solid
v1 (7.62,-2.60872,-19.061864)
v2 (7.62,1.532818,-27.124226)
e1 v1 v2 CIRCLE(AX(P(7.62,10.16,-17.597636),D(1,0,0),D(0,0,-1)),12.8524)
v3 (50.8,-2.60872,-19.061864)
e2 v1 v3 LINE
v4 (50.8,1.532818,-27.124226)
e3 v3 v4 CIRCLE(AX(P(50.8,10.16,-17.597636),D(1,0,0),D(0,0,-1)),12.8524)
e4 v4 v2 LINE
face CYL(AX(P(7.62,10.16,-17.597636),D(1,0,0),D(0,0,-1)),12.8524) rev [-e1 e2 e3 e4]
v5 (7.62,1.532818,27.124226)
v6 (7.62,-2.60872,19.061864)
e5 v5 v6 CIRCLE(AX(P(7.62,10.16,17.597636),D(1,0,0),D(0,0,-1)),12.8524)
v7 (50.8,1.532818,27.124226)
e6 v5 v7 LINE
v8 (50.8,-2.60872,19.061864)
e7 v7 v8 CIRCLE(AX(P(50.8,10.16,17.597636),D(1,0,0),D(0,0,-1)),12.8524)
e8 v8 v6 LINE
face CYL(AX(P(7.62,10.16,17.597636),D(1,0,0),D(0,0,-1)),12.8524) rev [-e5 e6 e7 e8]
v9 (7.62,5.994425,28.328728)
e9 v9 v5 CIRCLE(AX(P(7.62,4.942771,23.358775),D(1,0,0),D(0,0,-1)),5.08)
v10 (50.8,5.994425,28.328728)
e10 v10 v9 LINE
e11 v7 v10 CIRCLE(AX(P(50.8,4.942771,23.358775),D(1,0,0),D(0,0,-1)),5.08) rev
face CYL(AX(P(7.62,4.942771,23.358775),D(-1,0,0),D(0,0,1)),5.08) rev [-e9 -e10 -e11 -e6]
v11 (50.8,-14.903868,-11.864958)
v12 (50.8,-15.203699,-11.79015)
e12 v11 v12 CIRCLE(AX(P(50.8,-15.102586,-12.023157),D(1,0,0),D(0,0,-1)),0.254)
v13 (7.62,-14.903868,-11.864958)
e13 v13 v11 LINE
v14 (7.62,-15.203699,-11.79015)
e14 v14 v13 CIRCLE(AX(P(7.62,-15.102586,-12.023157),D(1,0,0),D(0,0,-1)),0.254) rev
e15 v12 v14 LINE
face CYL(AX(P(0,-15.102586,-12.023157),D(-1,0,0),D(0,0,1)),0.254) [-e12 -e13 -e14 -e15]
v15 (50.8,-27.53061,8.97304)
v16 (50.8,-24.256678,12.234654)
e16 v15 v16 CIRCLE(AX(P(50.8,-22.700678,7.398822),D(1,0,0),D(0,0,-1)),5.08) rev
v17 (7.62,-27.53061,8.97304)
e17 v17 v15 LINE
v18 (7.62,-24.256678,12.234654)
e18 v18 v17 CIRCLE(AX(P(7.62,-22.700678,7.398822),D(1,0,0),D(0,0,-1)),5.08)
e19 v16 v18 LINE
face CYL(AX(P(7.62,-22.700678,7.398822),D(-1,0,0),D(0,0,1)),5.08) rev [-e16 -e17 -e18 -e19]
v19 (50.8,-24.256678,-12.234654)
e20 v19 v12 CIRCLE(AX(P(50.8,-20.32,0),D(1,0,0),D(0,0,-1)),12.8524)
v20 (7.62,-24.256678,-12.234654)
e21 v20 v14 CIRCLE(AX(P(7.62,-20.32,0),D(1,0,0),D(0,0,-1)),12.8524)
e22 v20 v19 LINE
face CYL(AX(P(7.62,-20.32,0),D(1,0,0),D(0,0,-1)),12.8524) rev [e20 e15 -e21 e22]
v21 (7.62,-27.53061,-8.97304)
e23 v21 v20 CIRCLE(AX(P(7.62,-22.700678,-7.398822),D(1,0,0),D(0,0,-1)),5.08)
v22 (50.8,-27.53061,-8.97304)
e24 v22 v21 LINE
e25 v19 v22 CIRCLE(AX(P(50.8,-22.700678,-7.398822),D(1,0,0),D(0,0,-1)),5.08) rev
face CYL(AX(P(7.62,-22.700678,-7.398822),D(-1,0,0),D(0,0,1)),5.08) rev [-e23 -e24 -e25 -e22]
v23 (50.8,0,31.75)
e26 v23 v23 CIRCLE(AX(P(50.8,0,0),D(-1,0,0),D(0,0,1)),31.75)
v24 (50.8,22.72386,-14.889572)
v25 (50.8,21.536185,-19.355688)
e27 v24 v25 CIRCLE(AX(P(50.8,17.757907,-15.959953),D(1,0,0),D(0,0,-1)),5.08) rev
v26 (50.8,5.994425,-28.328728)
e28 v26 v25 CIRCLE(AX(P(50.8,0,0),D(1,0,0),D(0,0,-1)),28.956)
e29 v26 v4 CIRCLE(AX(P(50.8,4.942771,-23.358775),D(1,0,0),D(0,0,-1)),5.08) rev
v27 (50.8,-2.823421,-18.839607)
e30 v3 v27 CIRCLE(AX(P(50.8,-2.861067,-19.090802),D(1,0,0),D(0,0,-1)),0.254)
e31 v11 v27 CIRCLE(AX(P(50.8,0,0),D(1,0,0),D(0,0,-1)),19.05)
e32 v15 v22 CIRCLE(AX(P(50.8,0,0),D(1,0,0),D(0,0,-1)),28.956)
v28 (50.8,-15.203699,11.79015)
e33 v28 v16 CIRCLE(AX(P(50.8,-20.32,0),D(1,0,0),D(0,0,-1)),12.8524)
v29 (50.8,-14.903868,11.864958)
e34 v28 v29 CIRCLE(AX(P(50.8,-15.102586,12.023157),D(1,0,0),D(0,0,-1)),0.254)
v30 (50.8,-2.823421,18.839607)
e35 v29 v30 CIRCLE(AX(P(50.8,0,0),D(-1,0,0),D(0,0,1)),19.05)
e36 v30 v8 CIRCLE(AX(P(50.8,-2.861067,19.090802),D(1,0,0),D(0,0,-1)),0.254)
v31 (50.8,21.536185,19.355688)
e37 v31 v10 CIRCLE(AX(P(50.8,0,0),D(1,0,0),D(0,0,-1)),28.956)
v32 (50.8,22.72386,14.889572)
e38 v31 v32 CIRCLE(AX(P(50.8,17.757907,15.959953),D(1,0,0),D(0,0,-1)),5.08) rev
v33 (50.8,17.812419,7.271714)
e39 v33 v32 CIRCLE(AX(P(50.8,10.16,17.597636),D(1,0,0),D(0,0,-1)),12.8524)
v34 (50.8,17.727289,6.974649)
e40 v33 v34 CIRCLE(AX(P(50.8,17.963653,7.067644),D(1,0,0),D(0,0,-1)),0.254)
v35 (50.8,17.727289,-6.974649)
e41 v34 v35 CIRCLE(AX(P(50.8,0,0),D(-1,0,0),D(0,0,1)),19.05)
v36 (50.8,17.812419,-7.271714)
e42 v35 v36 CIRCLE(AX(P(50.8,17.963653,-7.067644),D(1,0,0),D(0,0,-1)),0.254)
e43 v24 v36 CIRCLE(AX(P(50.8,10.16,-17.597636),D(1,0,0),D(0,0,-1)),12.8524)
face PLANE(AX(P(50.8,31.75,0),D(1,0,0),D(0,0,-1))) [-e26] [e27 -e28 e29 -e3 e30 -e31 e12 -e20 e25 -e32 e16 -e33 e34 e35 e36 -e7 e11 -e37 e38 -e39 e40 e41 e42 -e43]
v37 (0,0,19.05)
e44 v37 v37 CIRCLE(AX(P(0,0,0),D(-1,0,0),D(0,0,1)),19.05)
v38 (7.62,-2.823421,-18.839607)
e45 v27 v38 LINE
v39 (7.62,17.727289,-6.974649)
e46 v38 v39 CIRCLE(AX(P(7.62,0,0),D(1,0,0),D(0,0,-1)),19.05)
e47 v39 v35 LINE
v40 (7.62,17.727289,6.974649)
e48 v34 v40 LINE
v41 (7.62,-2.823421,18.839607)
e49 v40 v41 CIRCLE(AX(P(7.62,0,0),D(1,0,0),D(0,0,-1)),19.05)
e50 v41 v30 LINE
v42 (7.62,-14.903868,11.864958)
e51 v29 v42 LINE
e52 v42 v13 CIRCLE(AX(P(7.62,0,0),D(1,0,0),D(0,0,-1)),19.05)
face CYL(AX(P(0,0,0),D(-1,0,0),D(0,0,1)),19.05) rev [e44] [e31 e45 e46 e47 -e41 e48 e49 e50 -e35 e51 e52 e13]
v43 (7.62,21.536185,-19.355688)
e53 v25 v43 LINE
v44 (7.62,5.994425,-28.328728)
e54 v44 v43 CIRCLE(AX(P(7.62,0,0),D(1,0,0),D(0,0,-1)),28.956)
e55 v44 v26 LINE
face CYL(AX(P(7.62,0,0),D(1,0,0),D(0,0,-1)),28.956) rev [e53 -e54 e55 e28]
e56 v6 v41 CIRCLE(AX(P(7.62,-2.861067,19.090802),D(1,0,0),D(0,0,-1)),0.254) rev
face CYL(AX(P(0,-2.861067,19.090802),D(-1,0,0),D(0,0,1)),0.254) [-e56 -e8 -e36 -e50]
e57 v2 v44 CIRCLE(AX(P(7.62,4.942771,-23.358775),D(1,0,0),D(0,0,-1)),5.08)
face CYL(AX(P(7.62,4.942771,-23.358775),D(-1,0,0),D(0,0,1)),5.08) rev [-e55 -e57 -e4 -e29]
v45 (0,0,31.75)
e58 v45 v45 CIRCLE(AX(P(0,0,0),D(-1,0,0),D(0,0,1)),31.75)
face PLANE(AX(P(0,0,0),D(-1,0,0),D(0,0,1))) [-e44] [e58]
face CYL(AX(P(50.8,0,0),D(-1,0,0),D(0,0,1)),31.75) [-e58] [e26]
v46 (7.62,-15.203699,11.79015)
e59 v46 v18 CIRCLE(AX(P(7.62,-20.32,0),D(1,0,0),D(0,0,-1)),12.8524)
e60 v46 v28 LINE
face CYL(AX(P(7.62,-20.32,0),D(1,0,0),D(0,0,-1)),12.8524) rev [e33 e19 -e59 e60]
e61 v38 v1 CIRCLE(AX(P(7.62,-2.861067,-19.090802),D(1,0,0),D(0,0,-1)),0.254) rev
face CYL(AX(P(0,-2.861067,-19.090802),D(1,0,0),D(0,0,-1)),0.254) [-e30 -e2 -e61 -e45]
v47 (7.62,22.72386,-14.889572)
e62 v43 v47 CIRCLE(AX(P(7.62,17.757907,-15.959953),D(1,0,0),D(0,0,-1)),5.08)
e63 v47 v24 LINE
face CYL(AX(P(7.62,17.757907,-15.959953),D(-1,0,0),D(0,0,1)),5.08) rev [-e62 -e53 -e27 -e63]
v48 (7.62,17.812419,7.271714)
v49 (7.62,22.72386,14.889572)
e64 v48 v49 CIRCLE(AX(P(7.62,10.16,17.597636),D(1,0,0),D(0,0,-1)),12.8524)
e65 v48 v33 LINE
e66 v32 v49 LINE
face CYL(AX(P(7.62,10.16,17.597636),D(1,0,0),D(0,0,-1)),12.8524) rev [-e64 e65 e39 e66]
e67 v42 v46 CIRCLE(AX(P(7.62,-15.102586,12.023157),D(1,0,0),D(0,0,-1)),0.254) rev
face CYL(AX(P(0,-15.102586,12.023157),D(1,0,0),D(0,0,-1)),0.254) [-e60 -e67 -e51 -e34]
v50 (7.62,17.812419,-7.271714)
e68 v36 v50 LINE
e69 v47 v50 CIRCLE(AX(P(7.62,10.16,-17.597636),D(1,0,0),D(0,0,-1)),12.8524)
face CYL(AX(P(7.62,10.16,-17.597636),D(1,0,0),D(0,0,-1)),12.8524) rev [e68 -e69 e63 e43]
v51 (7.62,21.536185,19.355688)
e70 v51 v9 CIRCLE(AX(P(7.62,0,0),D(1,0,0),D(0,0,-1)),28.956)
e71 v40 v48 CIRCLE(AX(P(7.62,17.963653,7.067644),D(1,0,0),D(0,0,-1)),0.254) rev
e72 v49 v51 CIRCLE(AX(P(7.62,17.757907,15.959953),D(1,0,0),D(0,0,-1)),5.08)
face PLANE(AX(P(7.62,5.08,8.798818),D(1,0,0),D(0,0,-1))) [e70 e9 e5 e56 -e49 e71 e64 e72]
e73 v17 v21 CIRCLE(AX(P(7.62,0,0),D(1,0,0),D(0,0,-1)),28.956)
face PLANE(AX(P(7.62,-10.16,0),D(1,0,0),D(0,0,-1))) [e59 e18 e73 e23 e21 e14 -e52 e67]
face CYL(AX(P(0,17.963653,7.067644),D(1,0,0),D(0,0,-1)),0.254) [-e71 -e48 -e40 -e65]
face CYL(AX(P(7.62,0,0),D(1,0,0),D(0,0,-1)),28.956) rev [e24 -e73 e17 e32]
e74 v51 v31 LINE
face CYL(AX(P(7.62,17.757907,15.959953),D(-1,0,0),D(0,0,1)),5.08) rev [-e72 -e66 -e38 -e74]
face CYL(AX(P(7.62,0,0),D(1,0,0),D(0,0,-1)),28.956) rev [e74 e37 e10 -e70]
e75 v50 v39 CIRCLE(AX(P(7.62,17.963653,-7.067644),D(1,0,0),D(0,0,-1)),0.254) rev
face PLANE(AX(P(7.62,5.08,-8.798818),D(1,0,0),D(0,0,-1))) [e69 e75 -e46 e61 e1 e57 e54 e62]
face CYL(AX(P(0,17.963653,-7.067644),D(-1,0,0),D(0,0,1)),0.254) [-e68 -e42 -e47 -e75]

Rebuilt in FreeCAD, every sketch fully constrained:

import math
import FreeCAD as App
import Part
import Sketcher
from FreeCAD import Vector
Q = App.Units.Quantity


def edges_at(feature, points):
    """Names of the edges that pass closest to the given points."""
    edges = feature.Shape.Edges
    near = lambda p: min(range(len(edges)), key=lambda i: edges[i].distToShape(Part.Vertex(*p))[0])
    return sorted({f"Edge{near(p) + 1}" for p in points})

doc = App.newDocument("Part")
body = doc.addObject("PartDesign::Body", "Body")

# Sketch on XY plane
sketch1 = body.newObject("Sketcher::SketchObject", "Sketch")
sketch1.AttachmentSupport = (doc.getObject("XY_Plane"), [""])
sketch1.MapMode = "FlatFace"
sketch1.addGeometry(Part.LineSegment(Vector(50.8, 31.75, 0), Vector(50.8, 0, 0)), False)
sketch1.addGeometry(Part.LineSegment(Vector(50.8, 0, 0), Vector(0, 0, 0)), False)
sketch1.addGeometry(Part.LineSegment(Vector(0, 0, 0), Vector(0, 31.75, 0)), False)
sketch1.addGeometry(Part.LineSegment(Vector(0, 31.75, 0), Vector(50.8, 31.75, 0)), False)
sketch1.addConstraint(Sketcher.Constraint("Coincident", 0, 2, 1, 1))
sketch1.addConstraint(Sketcher.Constraint("Coincident", 1, 2, 2, 1))
sketch1.addConstraint(Sketcher.Constraint("Coincident", 2, 2, 3, 1))
sketch1.addConstraint(Sketcher.Constraint("Coincident", 3, 2, 0, 1))
sketch1.addConstraint(Sketcher.Constraint("Vertical", 0))
sketch1.addConstraint(Sketcher.Constraint("Horizontal", 1))
sketch1.addConstraint(Sketcher.Constraint("Vertical", 2))
sketch1.addConstraint(Sketcher.Constraint("Horizontal", 3))
sketch1.addConstraint(Sketcher.Constraint("Coincident", 1, 2, -1, 1))
sketch1.addConstraint(Sketcher.Constraint("DistanceX", 1, 2, 1, 1, Q("2 in")))
sketch1.addConstraint(Sketcher.Constraint("DistanceY", 0, 2, 0, 1, Q("1.25 in")))
revolution = body.newObject("PartDesign::Revolution", "Revolution")
revolution.Profile = sketch1
revolution.ReferenceAxis = (sketch1, ["H_Axis"])
revolution.Angle = 360

# Sketch on YZ plane
sketch2 = body.newObject("Sketcher::SketchObject", "Sketch001")
sketch2.AttachmentSupport = (doc.getObject("YZ_Plane"), [""])
sketch2.MapMode = "FlatFace"
sketch2.AttachmentOffset = App.Placement(Vector(0, 0, 2 * 25.4), App.Rotation())
sketch2.addGeometry(Part.ArcOfCircle(Part.Circle(Vector(0, 0, 0), Vector(0, 0, 1), 28.956), math.radians(37.369658), math.radians(82.630342)), False)
sketch2.addGeometry(Part.ArcOfCircle(Part.Circle(Vector(10.16, 17.597636, 0), Vector(0, 0, 1), 12.8524), math.radians(120.100953), math.radians(359.899047)), False)
sketch2.addConstraint(Sketcher.Constraint("Coincident", 0, 1, 1, 2))
sketch2.addConstraint(Sketcher.Constraint("Coincident", 1, 1, 0, 2))
sketch2.addConstraint(Sketcher.Constraint("Coincident", 0, 3, -1, 1))
sketch2.addConstraint(Sketcher.Constraint("Radius", 0, Q("1.14 in")))
sketch2.addConstraint(Sketcher.Constraint("Radius", 1, Q("0.506 in")))
sketch2.addConstraint(Sketcher.Constraint("DistanceX", -1, 1, 1, 3, Q("0.4 in")))
sketch2.addConstraint(Sketcher.Constraint("DistanceX", -1, 1, 1, 1, 3.714198))
pocket1 = body.newObject("PartDesign::Pocket", "Pocket")
pocket1.Profile = sketch2
pocket1.Length = Q("1.7 in")

# Sketch on YZ plane
sketch3 = body.newObject("Sketcher::SketchObject", "Sketch002")
sketch3.AttachmentSupport = (doc.getObject("YZ_Plane"), [""])
sketch3.MapMode = "FlatFace"
sketch3.AttachmentOffset = App.Placement(Vector(0, 0, 2 * 25.4), App.Rotation())
sketch3.addGeometry(Part.ArcOfCircle(Part.Circle(Vector(0, 0, 0), Vector(0, 0, 1), 28.956), math.radians(157.369658), math.radians(202.630342)), False)
sketch3.addGeometry(Part.ArcOfCircle(Part.Circle(Vector(-20.32, 0, 0), Vector(0, 0, 1), 12.8524), math.radians(-119.899047), math.radians(119.899047)), False)
sketch3.addConstraint(Sketcher.Constraint("Coincident", 0, 1, 1, 2))
sketch3.addConstraint(Sketcher.Constraint("Coincident", 1, 1, 0, 2))
sketch3.addConstraint(Sketcher.Constraint("Coincident", 0, 3, -1, 1))
sketch3.addConstraint(Sketcher.Constraint("PointOnObject", 1, 3, -1))
sketch3.addConstraint(Sketcher.Constraint("Radius", 0, Q("1.14 in")))
sketch3.addConstraint(Sketcher.Constraint("Radius", 1, Q("0.506 in")))
sketch3.addConstraint(Sketcher.Constraint("DistanceX", 1, 3, -1, 1, Q("0.8 in")))
pocket2 = body.newObject("PartDesign::Pocket", "Pocket001")
pocket2.Profile = sketch3
pocket2.Length = Q("1.7 in")

# Sketch on YZ plane
sketch4 = body.newObject("Sketcher::SketchObject", "Sketch003")
sketch4.AttachmentSupport = (doc.getObject("YZ_Plane"), [""])
sketch4.MapMode = "FlatFace"
sketch4.AttachmentOffset = App.Placement(Vector(0, 0, 2 * 25.4), App.Rotation())
sketch4.addGeometry(Part.ArcOfCircle(Part.Circle(Vector(0, 0, 0), Vector(0, 0, 1), 28.956), math.radians(-82.630342), math.radians(-37.369658)), False)
sketch4.addGeometry(Part.ArcOfCircle(Part.Circle(Vector(10.16, -17.597636, 0), Vector(0, 0, 1), 12.8524), math.radians(0.100953), math.radians(239.899047)), False)
sketch4.addConstraint(Sketcher.Constraint("Coincident", 0, 1, 1, 2))
sketch4.addConstraint(Sketcher.Constraint("Coincident", 1, 1, 0, 2))
sketch4.addConstraint(Sketcher.Constraint("Coincident", 0, 3, -1, 1))
sketch4.addConstraint(Sketcher.Constraint("Radius", 0, Q("1.14 in")))
sketch4.addConstraint(Sketcher.Constraint("Radius", 1, Q("0.506 in")))
sketch4.addConstraint(Sketcher.Constraint("DistanceX", -1, 1, 1, 3, Q("0.4 in")))
sketch4.addConstraint(Sketcher.Constraint("DistanceX", -1, 1, 0, 1, 3.714198))
pocket3 = body.newObject("PartDesign::Pocket", "Pocket002")
pocket3.Profile = sketch4
pocket3.Length = Q("1.7 in")

# Sketch on YZ plane
sketch5 = body.newObject("Sketcher::SketchObject", "Sketch004")
sketch5.AttachmentSupport = (doc.getObject("YZ_Plane"), [""])
sketch5.MapMode = "FlatFace"
sketch5.addGeometry(Part.Circle(Vector(0, 0, 0), Vector(0, 0, 1), 19.05), False)
sketch5.addConstraint(Sketcher.Constraint("Coincident", 0, 3, -1, 1))
sketch5.addConstraint(Sketcher.Constraint("Diameter", 0, Q("1.5 in")))
doc.recompute()
hole = body.newObject("PartDesign::Hole", "Hole")
hole.Profile = sketch5
hole.ThreadType = "None"
hole.Diameter = Q("1.5 in")
hole.DepthType = "ThroughAll"
hole.Reversed = True
doc.recompute()

fillet = body.newObject("PartDesign::Fillet", "Fillet")
fillet.Base = (hole, edges_at(hole, [
    (29.21, 23.012, 17.575),
    (29.21, 3.714, 28.717),
    (29.21, -26.727, 11.142),
    (29.21, -26.727, -11.142),
    (29.21, 3.714, -28.717),
    (29.21, 23.012, -17.575),
]))
fillet.Radius = Q("0.2 in")
doc.recompute()

fillet2 = body.newObject("PartDesign::Fillet", "Fillet001")
fillet2.Base = (fillet, edges_at(fillet, [
    (29.21, 17.655, -7.157),
    (29.21, -2.629, -18.868),
    (29.21, 17.655, 7.157),
    (29.21, -15.025, -11.711),
    (29.21, -15.025, 11.711),
    (29.21, -2.629, 18.868),
]))
fillet2.Radius = Q("0.01 in")

doc.recompute()
